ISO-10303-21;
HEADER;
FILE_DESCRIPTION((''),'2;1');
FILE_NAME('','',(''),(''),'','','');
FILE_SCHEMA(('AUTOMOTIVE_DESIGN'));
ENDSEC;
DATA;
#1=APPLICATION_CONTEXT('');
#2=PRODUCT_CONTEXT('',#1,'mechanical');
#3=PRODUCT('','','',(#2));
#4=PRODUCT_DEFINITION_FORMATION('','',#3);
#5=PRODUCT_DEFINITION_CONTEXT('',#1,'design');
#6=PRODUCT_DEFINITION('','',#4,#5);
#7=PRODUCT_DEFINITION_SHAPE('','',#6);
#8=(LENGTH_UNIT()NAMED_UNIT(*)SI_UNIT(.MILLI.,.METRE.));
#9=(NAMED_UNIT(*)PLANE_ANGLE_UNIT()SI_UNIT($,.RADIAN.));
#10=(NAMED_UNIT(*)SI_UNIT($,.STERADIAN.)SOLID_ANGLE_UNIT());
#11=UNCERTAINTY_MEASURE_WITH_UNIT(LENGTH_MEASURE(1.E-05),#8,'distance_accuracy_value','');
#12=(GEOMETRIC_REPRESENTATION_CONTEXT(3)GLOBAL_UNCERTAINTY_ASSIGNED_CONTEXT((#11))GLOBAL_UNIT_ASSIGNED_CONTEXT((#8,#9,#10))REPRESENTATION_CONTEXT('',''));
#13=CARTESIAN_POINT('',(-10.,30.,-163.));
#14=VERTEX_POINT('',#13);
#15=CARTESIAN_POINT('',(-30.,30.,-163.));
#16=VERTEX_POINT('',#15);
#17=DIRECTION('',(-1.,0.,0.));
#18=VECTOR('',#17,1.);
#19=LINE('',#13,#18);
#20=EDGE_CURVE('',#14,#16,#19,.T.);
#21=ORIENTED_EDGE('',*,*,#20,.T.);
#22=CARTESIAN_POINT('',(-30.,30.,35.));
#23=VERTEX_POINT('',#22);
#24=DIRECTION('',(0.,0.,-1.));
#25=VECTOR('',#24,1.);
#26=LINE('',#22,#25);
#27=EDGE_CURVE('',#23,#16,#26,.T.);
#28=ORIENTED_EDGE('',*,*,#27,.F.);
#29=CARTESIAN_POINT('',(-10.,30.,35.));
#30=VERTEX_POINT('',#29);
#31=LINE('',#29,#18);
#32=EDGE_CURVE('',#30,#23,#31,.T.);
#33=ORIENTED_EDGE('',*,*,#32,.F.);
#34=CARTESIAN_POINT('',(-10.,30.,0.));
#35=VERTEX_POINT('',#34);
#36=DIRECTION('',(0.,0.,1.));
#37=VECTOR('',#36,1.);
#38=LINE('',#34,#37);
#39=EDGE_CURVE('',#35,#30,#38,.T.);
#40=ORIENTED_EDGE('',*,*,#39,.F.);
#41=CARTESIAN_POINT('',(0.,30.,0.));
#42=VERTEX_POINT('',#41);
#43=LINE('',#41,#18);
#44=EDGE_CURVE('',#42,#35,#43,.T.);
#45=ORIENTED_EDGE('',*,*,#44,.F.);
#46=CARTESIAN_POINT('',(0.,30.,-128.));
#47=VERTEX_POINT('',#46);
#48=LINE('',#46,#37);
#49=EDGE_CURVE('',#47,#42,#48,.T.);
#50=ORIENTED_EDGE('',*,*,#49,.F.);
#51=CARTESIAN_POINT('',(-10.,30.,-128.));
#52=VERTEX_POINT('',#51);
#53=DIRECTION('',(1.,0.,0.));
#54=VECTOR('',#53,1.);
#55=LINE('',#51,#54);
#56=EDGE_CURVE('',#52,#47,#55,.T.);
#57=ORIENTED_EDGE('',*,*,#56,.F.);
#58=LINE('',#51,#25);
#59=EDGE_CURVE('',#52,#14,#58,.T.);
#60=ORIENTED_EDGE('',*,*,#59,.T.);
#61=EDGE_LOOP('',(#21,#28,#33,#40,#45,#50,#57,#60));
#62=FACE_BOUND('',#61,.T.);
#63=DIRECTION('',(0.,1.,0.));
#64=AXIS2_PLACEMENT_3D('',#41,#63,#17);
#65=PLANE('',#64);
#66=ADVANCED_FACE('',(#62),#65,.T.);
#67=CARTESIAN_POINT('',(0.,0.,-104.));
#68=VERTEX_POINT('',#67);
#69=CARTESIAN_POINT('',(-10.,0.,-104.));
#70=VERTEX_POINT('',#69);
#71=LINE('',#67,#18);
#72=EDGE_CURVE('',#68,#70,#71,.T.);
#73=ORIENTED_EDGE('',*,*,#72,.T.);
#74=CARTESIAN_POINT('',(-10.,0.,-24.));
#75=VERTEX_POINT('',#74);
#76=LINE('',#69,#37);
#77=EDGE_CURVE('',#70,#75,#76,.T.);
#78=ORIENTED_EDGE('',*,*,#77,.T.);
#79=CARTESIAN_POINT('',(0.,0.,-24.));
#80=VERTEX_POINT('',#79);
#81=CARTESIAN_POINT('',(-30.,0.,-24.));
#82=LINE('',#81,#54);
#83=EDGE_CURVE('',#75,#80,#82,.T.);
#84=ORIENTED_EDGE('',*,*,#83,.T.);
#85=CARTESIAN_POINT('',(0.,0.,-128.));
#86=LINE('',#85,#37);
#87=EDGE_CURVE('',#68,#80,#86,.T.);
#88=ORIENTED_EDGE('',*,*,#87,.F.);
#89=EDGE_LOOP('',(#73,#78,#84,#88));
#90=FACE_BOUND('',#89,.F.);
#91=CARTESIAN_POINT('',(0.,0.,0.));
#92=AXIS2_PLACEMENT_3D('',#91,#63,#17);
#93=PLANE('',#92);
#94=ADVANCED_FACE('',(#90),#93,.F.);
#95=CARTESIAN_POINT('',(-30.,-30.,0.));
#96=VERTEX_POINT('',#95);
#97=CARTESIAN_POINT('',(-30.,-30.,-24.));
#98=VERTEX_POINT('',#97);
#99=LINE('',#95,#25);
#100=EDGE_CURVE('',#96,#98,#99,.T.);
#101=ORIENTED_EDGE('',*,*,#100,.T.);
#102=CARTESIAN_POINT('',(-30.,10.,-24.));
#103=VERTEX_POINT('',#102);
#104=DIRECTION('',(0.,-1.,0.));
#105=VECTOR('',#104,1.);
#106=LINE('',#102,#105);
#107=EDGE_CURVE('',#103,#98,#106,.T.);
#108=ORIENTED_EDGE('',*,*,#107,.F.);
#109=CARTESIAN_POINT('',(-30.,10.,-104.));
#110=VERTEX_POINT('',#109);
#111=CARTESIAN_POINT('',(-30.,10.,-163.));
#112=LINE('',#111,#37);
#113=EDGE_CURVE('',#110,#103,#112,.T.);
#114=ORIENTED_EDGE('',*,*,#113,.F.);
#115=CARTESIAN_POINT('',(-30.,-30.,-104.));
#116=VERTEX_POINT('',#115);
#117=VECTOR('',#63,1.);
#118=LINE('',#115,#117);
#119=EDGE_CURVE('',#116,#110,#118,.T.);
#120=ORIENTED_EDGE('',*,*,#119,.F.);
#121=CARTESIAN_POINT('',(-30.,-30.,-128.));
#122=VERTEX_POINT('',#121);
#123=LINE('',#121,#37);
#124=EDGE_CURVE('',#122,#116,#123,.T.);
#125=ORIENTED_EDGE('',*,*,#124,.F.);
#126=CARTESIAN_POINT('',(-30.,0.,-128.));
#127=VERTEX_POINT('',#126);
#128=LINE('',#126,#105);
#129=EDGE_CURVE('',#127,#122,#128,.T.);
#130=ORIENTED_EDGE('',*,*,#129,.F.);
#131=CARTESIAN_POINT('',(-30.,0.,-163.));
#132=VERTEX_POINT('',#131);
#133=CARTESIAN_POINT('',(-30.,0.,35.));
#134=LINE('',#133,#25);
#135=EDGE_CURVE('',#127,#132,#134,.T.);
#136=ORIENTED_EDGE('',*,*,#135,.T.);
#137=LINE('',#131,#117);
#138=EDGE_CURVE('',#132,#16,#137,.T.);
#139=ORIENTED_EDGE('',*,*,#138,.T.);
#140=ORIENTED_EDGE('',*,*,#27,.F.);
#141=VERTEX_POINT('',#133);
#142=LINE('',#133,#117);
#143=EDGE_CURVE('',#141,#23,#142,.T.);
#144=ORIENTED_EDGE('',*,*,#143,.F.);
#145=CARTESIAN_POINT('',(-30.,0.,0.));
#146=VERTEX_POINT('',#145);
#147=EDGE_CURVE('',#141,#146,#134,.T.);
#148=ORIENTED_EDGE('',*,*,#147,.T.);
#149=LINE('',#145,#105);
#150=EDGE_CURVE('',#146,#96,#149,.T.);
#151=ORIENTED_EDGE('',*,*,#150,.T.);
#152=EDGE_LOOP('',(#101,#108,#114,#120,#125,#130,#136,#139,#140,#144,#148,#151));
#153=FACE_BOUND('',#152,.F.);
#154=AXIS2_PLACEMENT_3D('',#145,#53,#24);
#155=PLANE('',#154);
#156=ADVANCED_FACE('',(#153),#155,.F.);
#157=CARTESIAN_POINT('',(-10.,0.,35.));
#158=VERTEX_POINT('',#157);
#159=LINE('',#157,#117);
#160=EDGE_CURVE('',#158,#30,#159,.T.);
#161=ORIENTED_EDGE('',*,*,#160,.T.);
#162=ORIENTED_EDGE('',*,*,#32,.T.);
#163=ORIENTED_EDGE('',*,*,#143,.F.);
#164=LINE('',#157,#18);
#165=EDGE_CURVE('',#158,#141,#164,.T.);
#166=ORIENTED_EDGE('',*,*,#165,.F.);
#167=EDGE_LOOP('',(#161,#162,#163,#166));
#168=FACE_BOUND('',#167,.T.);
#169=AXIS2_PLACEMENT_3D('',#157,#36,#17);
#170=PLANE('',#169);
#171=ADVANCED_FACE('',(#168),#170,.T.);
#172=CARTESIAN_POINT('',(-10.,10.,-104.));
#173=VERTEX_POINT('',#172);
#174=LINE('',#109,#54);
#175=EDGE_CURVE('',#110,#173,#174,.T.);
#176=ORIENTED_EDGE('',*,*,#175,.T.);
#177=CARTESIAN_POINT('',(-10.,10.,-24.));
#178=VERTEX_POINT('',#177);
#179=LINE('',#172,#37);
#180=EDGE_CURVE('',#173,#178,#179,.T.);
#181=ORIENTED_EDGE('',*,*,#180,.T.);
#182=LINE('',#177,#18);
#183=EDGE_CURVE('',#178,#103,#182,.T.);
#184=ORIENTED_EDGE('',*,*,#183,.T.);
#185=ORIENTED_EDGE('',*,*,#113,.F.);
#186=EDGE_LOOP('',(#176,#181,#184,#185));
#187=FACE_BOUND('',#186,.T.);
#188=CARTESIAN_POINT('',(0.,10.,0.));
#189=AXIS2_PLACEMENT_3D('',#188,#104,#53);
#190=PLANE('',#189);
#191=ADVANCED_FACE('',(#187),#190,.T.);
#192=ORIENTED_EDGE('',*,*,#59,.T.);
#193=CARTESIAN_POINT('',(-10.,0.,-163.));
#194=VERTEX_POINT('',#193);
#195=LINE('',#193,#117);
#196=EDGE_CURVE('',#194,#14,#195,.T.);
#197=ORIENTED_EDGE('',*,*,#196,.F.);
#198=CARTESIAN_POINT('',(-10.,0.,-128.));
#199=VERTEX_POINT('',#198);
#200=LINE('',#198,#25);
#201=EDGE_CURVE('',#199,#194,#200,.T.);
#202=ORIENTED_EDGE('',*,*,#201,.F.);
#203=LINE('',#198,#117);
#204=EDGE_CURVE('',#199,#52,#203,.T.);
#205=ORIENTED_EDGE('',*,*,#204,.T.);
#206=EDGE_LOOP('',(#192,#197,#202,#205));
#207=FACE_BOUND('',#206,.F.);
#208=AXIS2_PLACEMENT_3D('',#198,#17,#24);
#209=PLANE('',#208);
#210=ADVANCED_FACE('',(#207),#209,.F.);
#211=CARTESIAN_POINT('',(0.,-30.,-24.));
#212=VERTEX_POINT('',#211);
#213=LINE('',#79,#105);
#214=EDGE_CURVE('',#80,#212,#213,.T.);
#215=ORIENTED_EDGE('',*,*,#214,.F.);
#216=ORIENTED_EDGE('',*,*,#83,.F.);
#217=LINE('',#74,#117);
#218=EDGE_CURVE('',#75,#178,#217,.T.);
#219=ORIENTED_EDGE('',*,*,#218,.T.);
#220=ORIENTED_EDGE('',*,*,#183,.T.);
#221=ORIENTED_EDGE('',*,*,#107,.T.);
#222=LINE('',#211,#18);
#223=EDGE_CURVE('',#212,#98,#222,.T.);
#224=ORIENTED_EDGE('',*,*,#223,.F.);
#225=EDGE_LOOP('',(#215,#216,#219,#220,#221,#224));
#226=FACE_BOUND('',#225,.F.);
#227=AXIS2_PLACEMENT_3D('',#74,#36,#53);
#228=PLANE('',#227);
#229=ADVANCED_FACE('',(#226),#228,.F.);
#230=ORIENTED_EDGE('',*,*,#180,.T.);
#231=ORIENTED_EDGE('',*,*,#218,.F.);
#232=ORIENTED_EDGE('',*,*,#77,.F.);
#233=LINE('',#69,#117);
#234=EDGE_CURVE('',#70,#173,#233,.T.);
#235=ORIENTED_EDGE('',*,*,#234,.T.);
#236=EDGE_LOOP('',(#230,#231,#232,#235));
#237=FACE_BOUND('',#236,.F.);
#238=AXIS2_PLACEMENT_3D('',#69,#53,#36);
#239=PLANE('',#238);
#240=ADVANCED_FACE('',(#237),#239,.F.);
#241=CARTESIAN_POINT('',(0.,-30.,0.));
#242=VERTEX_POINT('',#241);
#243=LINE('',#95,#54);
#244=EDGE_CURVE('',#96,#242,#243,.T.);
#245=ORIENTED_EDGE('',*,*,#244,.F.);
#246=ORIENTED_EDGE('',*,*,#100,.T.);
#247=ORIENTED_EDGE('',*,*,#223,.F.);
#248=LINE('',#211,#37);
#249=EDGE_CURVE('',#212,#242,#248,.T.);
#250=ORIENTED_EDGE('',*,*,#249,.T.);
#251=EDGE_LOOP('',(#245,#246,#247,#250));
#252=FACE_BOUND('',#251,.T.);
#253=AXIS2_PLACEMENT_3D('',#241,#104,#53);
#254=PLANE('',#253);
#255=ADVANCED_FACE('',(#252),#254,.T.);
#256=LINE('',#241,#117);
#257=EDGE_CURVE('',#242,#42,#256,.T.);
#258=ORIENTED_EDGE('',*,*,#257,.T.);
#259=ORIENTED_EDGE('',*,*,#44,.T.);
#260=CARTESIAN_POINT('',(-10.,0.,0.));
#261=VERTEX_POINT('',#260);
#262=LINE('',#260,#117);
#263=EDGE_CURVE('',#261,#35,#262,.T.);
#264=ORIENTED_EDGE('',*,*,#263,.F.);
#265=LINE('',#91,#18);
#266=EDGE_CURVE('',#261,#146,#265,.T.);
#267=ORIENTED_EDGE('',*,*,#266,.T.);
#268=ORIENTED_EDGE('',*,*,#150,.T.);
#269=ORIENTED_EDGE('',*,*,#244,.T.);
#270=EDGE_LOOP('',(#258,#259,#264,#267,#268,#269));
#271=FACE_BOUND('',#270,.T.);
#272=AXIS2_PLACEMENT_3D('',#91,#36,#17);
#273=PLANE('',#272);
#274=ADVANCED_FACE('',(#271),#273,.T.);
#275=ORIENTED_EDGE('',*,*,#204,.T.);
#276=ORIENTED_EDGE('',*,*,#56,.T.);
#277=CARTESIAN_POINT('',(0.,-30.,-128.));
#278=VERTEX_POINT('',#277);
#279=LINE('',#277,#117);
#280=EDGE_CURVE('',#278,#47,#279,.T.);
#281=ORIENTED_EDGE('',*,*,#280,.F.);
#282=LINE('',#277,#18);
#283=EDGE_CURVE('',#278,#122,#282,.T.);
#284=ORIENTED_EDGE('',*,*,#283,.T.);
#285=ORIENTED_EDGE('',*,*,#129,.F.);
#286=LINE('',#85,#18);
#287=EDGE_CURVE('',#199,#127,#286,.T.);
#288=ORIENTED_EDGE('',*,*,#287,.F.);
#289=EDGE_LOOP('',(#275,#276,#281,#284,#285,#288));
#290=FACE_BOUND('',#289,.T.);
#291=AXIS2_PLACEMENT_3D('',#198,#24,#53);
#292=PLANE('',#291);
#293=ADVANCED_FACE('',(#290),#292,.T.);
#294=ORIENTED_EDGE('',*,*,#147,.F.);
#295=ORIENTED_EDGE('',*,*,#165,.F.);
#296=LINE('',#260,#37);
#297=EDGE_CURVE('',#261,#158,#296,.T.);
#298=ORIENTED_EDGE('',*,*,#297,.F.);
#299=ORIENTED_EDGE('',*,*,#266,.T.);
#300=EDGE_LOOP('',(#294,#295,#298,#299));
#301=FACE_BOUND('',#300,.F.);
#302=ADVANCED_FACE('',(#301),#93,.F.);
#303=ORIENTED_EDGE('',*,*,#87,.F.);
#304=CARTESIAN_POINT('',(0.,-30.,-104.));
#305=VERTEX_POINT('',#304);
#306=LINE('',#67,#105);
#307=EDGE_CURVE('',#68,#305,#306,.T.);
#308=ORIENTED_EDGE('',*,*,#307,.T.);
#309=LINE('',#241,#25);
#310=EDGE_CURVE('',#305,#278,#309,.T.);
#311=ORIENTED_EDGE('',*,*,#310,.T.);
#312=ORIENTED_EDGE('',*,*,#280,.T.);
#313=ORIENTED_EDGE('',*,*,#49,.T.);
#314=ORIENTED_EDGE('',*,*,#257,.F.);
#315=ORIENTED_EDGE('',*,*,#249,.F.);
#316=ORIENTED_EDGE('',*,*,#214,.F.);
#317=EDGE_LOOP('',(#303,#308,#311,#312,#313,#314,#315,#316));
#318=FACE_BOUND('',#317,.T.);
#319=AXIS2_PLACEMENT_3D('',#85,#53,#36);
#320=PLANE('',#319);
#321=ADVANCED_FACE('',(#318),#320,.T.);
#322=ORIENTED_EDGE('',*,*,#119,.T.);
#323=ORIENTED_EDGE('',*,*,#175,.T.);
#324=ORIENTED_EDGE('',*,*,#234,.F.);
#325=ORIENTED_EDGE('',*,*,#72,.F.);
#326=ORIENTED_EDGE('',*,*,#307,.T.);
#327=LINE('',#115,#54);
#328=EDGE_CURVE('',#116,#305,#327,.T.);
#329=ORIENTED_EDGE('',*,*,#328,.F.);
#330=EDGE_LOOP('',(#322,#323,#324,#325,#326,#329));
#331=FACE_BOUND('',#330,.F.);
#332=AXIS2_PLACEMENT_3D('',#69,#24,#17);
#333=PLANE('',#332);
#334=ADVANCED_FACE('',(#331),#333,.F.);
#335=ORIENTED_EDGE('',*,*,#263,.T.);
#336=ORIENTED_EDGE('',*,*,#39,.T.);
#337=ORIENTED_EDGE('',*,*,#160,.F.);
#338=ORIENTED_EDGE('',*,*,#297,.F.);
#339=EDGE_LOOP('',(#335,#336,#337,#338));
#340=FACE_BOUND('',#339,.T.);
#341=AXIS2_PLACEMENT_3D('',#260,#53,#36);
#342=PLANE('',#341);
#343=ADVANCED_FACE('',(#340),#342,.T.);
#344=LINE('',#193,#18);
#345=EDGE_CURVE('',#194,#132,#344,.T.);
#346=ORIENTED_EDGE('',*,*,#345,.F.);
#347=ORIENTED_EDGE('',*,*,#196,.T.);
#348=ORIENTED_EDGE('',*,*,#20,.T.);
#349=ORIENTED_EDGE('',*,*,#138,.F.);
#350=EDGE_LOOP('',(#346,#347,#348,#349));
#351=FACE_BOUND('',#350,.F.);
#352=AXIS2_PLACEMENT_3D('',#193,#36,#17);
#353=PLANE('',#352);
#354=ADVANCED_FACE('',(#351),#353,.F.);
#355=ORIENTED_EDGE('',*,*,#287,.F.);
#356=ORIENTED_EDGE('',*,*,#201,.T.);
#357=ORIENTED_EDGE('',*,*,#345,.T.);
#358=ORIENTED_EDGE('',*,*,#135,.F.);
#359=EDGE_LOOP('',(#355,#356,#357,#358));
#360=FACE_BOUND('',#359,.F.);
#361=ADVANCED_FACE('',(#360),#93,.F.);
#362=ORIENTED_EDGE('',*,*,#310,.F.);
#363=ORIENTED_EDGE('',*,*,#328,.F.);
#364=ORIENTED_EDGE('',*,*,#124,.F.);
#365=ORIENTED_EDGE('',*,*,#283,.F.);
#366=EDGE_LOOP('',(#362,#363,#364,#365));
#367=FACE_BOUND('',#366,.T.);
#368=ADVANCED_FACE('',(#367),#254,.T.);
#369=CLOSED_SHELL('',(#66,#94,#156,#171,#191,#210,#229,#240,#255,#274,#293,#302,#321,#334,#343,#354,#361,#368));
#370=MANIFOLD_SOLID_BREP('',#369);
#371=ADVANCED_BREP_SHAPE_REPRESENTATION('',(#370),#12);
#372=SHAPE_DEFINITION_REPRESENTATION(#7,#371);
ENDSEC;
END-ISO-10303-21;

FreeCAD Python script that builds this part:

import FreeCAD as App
import Part
import Sketcher
from FreeCAD import Vector
Q = App.Units.Quantity


def add_polygon(sketch, points):
    """Adds a closed chain of lines whose ends are joined by coincident constraints."""
    first, n = sketch.GeometryCount, len(points)
    for a, b in zip(points, points[1:] + points[:1]):
        sketch.addGeometry(Part.LineSegment(App.Vector(*a, 0), App.Vector(*b, 0)), False)
    for i in range(n):
        sketch.addConstraint(Sketcher.Constraint("Coincident", first + i, 2, first + (i + 1) % n, 1))

doc = App.newDocument("Part")
body = doc.addObject("PartDesign::Body", "Body")

# Sketch on XZ plane
sketch1 = doc.addObject("Sketcher::SketchObject", "Sketch")
body.addObject(sketch1)
sketch1.AttachmentSupport = (doc.XZ_Plane, [""])
sketch1.MapMode = "FlatFace"
add_polygon(sketch1, [(-10, 0), (0, 0), (0, -128), (-10, -128), (-10, -163), (-30, -163), (-30, 35), (-10, 35)])  # lines 0-7
sketch1.addConstraint([
    Sketcher.Constraint("Horizontal", 0),
    Sketcher.Constraint("Vertical", 1),
    Sketcher.Constraint("Horizontal", 2),
    Sketcher.Constraint("Vertical", 3),
    Sketcher.Constraint("Horizontal", 4),
    Sketcher.Constraint("Vertical", 5),
    Sketcher.Constraint("Horizontal", 6),
    Sketcher.Constraint("Vertical", 7),
    Sketcher.Constraint("Coincident", 0, 2, -1, 1),
    Sketcher.Constraint("Vertical", 3, 2, 6, 2),
    Sketcher.Constraint("Equal", 3, 7),
    Sketcher.Constraint("DistanceX", 0, 1, 0, 2, Q("10 mm")),
    Sketcher.Constraint("DistanceX", 4, 2, 4, 1, Q("20 mm")),
    Sketcher.Constraint("DistanceY", 1, 2, 1, 1, Q("128 mm")),
    Sketcher.Constraint("DistanceY", 3, 2, 3, 1, Q("35 mm")),
])
pad1 = doc.addObject("PartDesign::Pad", "Pad")
body.addObject(pad1)
pad1.Profile = sketch1
pad1.Length = 30
pad1.Reversed = True

# Sketch on XZ plane
sketch2 = doc.addObject("Sketcher::SketchObject", "Sketch001")
body.addObject(sketch2)
sketch2.AttachmentSupport = (doc.XZ_Plane, [""])
sketch2.MapMode = "FlatFace"
add_polygon(sketch2, [(-30, -24), (-30, -104), (-10, -104), (-10, -24)])  # lines 0-3
sketch2.addConstraint([
    Sketcher.Constraint("Vertical", 0),
    Sketcher.Constraint("Horizontal", 1),
    Sketcher.Constraint("Vertical", 2),
    Sketcher.Constraint("Horizontal", 3),
    Sketcher.Constraint("DistanceX", 1, 1, 1, 2, Q("20 mm")),
    Sketcher.Constraint("DistanceY", 0, 2, 0, 1, Q("80 mm")),
    Sketcher.Constraint("DistanceY", 2, 2, -1, 1, Q("24 mm")),
    Sketcher.Constraint("DistanceX", 0, 2, -1, 1, Q("30 mm")),
])
pocket1 = doc.addObject("PartDesign::Pocket", "Pocket")
body.addObject(pocket1)
pocket1.Profile = sketch2
pocket1.Length = 10

# Sketch on XZ plane
sketch3 = doc.addObject("Sketcher::SketchObject", "Sketch002")
body.addObject(sketch3)
sketch3.AttachmentSupport = (doc.XZ_Plane, [""])
sketch3.MapMode = "FlatFace"
add_polygon(sketch3, [(-30, 0), (-30, -24), (0, -24), (0, 0)])  # lines 0-3
add_polygon(sketch3, [(0, -128), (0, -104), (-30, -104), (-30, -128)])  # lines 4-7
sketch3.addConstraint([
    Sketcher.Constraint("Vertical", 0),
    Sketcher.Constraint("Horizontal", 1),
    Sketcher.Constraint("Vertical", 2),
    Sketcher.Constraint("Horizontal", 3),
    Sketcher.Constraint("Vertical", 4),
    Sketcher.Constraint("Horizontal", 5),
    Sketcher.Constraint("Vertical", 6),
    Sketcher.Constraint("Horizontal", 7),
    Sketcher.Constraint("Coincident", 2, 2, -1, 1),
    Sketcher.Constraint("PointOnObject", 4, 2, -2),
    Sketcher.Constraint("Vertical", 3, 2, 5, 2),
    Sketcher.Constraint("Equal", 2, 4),
    Sketcher.Constraint("DistanceX", 1, 1, 1, 2, Q("30 mm")),
    Sketcher.Constraint("DistanceY", 0, 2, 0, 1, Q("24 mm")),
    Sketcher.Constraint("DistanceY", 4, 2, -1, 1, Q("104 mm")),
])
pad2 = doc.addObject("PartDesign::Pad", "Pad001")
body.addObject(pad2)
pad2.Profile = sketch3
pad2.Length = 30

doc.recompute()
